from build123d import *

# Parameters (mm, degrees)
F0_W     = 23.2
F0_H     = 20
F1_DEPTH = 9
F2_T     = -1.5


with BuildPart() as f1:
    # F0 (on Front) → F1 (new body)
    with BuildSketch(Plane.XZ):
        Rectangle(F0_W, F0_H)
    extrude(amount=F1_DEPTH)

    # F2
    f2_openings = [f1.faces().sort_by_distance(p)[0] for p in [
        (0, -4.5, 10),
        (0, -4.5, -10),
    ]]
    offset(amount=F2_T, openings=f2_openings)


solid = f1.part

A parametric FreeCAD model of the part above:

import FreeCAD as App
import Part
import Sketcher

V = App.Vector
Q = App.Units.Quantity


def faces_at(feature, points):
    """Names of the faces that lie closest to the given points."""
    faces = feature.Shape.Faces
    near = lambda p: min(range(len(faces)), key=lambda i: faces[i].distToShape(Part.Vertex(*p))[0])
    return sorted({f"Face{near(p) + 1}" for p in points})

doc = App.newDocument("Part")
params = doc.addObject("Spreadsheet::Sheet", "Params")
for row, (alias, value) in enumerate([
    ("sketch1_height", "20 mm"),
    ("sketch1_width", "23.2 mm"),
    ("pad1_length", "9 mm"),
    ("thickness_wall", "1.5 mm"),
], start=1):
    params.set(f"A{row}", alias)
    params.set(f"B{row}", "=" + value)
    params.setAlias(f"B{row}", alias)

body = doc.addObject("PartDesign::Body", "Body")

# Sketch on XZ plane
sketch1 = body.newObject("Sketcher::SketchObject", "Sketch")
sketch1.AttachmentSupport = (doc.getObject("XZ_Plane"), [""])
sketch1.MapMode = "FlatFace"
sketch1.addGeometry(Part.LineSegment(V(-12, 10, 0), V(-12, -10, 0)), False)
sketch1.addGeometry(Part.LineSegment(V(-12, -10, 0), V(12, -10, 0)), False)
sketch1.addGeometry(Part.LineSegment(V(12, -10, 0), V(12, 10, 0)), False)
sketch1.addGeometry(Part.LineSegment(V(12, 10, 0), V(-12, 10, 0)), False)
sketch1.addConstraint(Sketcher.Constraint("Coincident", 0, 2, 1, 1))
sketch1.addConstraint(Sketcher.Constraint("Coincident", 1, 2, 2, 1))
sketch1.addConstraint(Sketcher.Constraint("Coincident", 2, 2, 3, 1))
sketch1.addConstraint(Sketcher.Constraint("Coincident", 3, 2, 0, 1))
sketch1.addConstraint(Sketcher.Constraint("Vertical", 0))
sketch1.addConstraint(Sketcher.Constraint("Horizontal", 1))
sketch1.addConstraint(Sketcher.Constraint("Vertical", 2))
sketch1.addConstraint(Sketcher.Constraint("Horizontal", 3))
sketch1.addConstraint(Sketcher.Constraint("Symmetric", 0, 2, 2, 2, -1, 1))
sketch1.addConstraint(Sketcher.Constraint("DistanceY", 0, 2, 0, 1, Q("20 mm")))
sketch1.addConstraint(Sketcher.Constraint("DistanceX", 1, 1, 1, 2, Q("23.2 mm")))
sketch1.setExpression("Constraints[9]", "Params.sketch1_height")
sketch1.setExpression("Constraints[10]", "Params.sketch1_width")
pad1 = body.newObject("PartDesign::Pad", "Pad")
pad1.Profile = sketch1
pad1.setExpression("Length", "Params.pad1_length")
doc.recompute()

thickness = body.newObject("PartDesign::Thickness", "Thickness")
thickness.Base = (pad1, faces_at(pad1, [(0, -4.5, 10), (0, -4.5, -10)]))
thickness.setExpression("Value", "Params.thickness_wall")
thickness.Reversed = True
thickness.Join = "Arc"

doc.recompute()
